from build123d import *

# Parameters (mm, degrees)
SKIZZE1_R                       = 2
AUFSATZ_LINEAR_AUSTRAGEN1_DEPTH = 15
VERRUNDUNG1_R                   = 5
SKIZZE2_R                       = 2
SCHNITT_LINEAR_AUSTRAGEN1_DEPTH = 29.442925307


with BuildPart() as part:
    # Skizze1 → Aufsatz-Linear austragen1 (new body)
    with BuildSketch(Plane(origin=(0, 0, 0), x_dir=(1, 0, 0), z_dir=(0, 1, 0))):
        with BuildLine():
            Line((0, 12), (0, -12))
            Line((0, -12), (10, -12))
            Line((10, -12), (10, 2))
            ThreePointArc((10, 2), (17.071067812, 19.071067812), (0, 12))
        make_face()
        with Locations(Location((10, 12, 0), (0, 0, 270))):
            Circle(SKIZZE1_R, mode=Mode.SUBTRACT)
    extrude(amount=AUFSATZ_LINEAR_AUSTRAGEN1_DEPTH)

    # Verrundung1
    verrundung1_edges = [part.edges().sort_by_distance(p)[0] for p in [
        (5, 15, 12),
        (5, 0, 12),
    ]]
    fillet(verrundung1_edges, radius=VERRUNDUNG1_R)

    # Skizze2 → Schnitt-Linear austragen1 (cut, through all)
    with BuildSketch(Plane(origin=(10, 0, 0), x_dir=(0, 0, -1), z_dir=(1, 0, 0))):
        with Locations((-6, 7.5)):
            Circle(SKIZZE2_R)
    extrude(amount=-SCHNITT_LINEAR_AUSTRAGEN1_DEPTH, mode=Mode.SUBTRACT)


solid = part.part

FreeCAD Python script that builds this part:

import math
import FreeCAD as App
import Part
import Sketcher
from FreeCAD import Vector
Q = App.Units.Quantity


def edges_at(feature, points):
    """Names of the edges that pass closest to the given points."""
    edges = feature.Shape.Edges
    near = lambda p: min(range(len(edges)), key=lambda i: edges[i].distToShape(Part.Vertex(*p))[0])
    return sorted({f"Edge{near(p) + 1}" for p in points})

doc = App.newDocument("Part")
body = doc.addObject("PartDesign::Body", "Body")

# Sketch on XZ plane
sketch1 = body.newObject("Sketcher::SketchObject", "Sketch")
sketch1.AttachmentSupport = (doc.getObject("XZ_Plane"), [""])
sketch1.MapMode = "FlatFace"
sketch1.addGeometry(Part.LineSegment(Vector(0, -12, 0), Vector(0, 12, 0)), False)
sketch1.addGeometry(Part.LineSegment(Vector(0, 12, 0), Vector(10, 12, 0)), False)
sketch1.addGeometry(Part.LineSegment(Vector(10, 12, 0), Vector(10, -2, 0)), False)
sketch1.addGeometry(Part.ArcOfCircle(Part.Circle(Vector(10, -12, 0), Vector(0, 0, 1), 10), math.radians(180), math.radians(450)), False)
sketch1.addGeometry(Part.Circle(Vector(10, -12, 0), Vector(0, 0, 1), 2), False)
sketch1.addConstraint(Sketcher.Constraint("Coincident", 0, 2, 1, 1))
sketch1.addConstraint(Sketcher.Constraint("Coincident", 1, 2, 2, 1))
sketch1.addConstraint(Sketcher.Constraint("Coincident", 2, 2, 3, 2))
sketch1.addConstraint(Sketcher.Constraint("Tangent", 3, 1, 0, 1))
sketch1.addConstraint(Sketcher.Constraint("Vertical", 0))
sketch1.addConstraint(Sketcher.Constraint("Horizontal", 1))
sketch1.addConstraint(Sketcher.Constraint("Vertical", 2))
sketch1.addConstraint(Sketcher.Constraint("Coincident", 4, 3, 3, 3))
sketch1.addConstraint(Sketcher.Constraint("Symmetric", 0, 2, 3, 1, -1, 1))
sketch1.addConstraint(Sketcher.Constraint("Vertical", 4, 3, 1, 2))
sketch1.addConstraint(Sketcher.Constraint("Diameter", 4, Q("4 mm")))
sketch1.addConstraint(Sketcher.Constraint("Radius", 3, Q("10 mm")))
sketch1.addConstraint(Sketcher.Constraint("DistanceY", 0, 1, 0, 2, Q("24 mm")))
pad1 = body.newObject("PartDesign::Pad", "Pad")
pad1.Profile = sketch1
pad1.Length = 15
pad1.Reversed = True
doc.recompute()

fillet = body.newObject("PartDesign::Fillet", "Fillet")
fillet.Base = (pad1, edges_at(pad1, [(5, 15, 12), (5, 0, 12)]))
fillet.Radius = 5

# Sketch on YZ plane
sketch2 = body.newObject("Sketcher::SketchObject", "Sketch001")
sketch2.AttachmentSupport = (doc.getObject("YZ_Plane"), [""])
sketch2.MapMode = "FlatFace"
sketch2.AttachmentOffset = App.Placement(Vector(0, 0, 10), App.Rotation())
sketch2.addGeometry(Part.Circle(Vector(7.5, 6, 0), Vector(0, 0, 1), 2), False)
sketch2.addConstraint(Sketcher.Constraint("Diameter", 0, Q("4 mm")))
sketch2.addConstraint(Sketcher.Constraint("DistanceY", -1, 1, 0, 3, Q("6 mm")))
sketch2.addConstraint(Sketcher.Constraint("DistanceX", -1, 1, 0, 3, Q("7.5 mm")))
pocket1 = body.newObject("PartDesign::Pocket", "Pocket")
pocket1.Profile = sketch2
pocket1.Type = "ThroughAll"

doc.recompute()
